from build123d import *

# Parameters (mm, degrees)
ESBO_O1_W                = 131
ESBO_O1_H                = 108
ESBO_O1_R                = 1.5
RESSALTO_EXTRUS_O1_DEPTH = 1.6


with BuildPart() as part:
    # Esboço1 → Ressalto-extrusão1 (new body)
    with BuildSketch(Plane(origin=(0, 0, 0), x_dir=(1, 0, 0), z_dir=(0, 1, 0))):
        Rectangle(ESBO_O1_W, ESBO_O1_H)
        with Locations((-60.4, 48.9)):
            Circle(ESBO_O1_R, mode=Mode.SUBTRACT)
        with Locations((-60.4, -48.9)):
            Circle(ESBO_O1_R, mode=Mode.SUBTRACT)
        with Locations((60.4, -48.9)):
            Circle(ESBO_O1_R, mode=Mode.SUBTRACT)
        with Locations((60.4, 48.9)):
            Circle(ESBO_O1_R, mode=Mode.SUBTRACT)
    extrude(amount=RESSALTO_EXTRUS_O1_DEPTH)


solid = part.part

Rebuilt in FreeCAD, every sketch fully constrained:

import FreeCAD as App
import Part
import Sketcher
from FreeCAD import Vector
Q = App.Units.Quantity

doc = App.newDocument("Part")
body = doc.addObject("PartDesign::Body", "Body")

sketch1 = body.newObject("Sketcher::SketchObject", "Sketch")
sketch1.AttachmentSupport = (doc.getObject("XZ_Plane"), [""])
sketch1.MapMode = "FlatFace"
sketch1.addGeometry([
    Part.LineSegment(Vector(-65.5, -54, 0), Vector(-65.5, 54, 0)),
    Part.LineSegment(Vector(-65.5, 54, 0), Vector(65.5, 54, 0)),
    Part.LineSegment(Vector(65.5, 54, 0), Vector(65.5, -54, 0)),
    Part.LineSegment(Vector(65.5, -54, 0), Vector(-65.5, -54, 0)),
    Part.Circle(Vector(-60.4, 48.9, 0), Vector(0, 0, 1), 1.5),
    Part.Circle(Vector(60.4, 48.9, 0), Vector(0, 0, 1), 1.5),
    Part.Circle(Vector(-60.4, -48.9, 0), Vector(0, 0, 1), 1.5),
    Part.Circle(Vector(60.4, -48.9, 0), Vector(0, 0, 1), 1.5),
], False)
sketch1.addConstraint([
    Sketcher.Constraint("Coincident", 0, 2, 1, 1),
    Sketcher.Constraint("Coincident", 1, 2, 2, 1),
    Sketcher.Constraint("Coincident", 2, 2, 3, 1),
    Sketcher.Constraint("Coincident", 3, 2, 0, 1),
    Sketcher.Constraint("Vertical", 0),
    Sketcher.Constraint("Horizontal", 1),
    Sketcher.Constraint("Vertical", 2),
    Sketcher.Constraint("Horizontal", 3),
    Sketcher.Constraint("Equal", 4, 5),
    Sketcher.Constraint("Equal", 5, 6),
    Sketcher.Constraint("Equal", 6, 7),
    Sketcher.Constraint("Symmetric", 5, 3, 6, 3, -1, 1),
    Sketcher.Constraint("Symmetric", 4, 3, 7, 3, -1, 1),
    Sketcher.Constraint("Symmetric", 0, 2, 2, 2, -1, 1),
    Sketcher.Constraint("Symmetric", 4, 3, 5, 3, -2),
    Sketcher.Constraint("Diameter", 4, Q("3 mm")),
    Sketcher.Constraint("DistanceX", 1, 1, 1, 2, Q("131 mm")),
    Sketcher.Constraint("DistanceY", 0, 1, 0, 2, Q("108 mm")),
    Sketcher.Constraint("DistanceX", 4, 3, -1, 1, Q("60.4 mm")),
    Sketcher.Constraint("DistanceY", -1, 1, 4, 3, Q("48.9 mm")),
])
pad1 = body.newObject("PartDesign::Pad", "Pad")
pad1.Profile = sketch1
pad1.Length = 1.6
pad1.Reversed = True

doc.recompute()
